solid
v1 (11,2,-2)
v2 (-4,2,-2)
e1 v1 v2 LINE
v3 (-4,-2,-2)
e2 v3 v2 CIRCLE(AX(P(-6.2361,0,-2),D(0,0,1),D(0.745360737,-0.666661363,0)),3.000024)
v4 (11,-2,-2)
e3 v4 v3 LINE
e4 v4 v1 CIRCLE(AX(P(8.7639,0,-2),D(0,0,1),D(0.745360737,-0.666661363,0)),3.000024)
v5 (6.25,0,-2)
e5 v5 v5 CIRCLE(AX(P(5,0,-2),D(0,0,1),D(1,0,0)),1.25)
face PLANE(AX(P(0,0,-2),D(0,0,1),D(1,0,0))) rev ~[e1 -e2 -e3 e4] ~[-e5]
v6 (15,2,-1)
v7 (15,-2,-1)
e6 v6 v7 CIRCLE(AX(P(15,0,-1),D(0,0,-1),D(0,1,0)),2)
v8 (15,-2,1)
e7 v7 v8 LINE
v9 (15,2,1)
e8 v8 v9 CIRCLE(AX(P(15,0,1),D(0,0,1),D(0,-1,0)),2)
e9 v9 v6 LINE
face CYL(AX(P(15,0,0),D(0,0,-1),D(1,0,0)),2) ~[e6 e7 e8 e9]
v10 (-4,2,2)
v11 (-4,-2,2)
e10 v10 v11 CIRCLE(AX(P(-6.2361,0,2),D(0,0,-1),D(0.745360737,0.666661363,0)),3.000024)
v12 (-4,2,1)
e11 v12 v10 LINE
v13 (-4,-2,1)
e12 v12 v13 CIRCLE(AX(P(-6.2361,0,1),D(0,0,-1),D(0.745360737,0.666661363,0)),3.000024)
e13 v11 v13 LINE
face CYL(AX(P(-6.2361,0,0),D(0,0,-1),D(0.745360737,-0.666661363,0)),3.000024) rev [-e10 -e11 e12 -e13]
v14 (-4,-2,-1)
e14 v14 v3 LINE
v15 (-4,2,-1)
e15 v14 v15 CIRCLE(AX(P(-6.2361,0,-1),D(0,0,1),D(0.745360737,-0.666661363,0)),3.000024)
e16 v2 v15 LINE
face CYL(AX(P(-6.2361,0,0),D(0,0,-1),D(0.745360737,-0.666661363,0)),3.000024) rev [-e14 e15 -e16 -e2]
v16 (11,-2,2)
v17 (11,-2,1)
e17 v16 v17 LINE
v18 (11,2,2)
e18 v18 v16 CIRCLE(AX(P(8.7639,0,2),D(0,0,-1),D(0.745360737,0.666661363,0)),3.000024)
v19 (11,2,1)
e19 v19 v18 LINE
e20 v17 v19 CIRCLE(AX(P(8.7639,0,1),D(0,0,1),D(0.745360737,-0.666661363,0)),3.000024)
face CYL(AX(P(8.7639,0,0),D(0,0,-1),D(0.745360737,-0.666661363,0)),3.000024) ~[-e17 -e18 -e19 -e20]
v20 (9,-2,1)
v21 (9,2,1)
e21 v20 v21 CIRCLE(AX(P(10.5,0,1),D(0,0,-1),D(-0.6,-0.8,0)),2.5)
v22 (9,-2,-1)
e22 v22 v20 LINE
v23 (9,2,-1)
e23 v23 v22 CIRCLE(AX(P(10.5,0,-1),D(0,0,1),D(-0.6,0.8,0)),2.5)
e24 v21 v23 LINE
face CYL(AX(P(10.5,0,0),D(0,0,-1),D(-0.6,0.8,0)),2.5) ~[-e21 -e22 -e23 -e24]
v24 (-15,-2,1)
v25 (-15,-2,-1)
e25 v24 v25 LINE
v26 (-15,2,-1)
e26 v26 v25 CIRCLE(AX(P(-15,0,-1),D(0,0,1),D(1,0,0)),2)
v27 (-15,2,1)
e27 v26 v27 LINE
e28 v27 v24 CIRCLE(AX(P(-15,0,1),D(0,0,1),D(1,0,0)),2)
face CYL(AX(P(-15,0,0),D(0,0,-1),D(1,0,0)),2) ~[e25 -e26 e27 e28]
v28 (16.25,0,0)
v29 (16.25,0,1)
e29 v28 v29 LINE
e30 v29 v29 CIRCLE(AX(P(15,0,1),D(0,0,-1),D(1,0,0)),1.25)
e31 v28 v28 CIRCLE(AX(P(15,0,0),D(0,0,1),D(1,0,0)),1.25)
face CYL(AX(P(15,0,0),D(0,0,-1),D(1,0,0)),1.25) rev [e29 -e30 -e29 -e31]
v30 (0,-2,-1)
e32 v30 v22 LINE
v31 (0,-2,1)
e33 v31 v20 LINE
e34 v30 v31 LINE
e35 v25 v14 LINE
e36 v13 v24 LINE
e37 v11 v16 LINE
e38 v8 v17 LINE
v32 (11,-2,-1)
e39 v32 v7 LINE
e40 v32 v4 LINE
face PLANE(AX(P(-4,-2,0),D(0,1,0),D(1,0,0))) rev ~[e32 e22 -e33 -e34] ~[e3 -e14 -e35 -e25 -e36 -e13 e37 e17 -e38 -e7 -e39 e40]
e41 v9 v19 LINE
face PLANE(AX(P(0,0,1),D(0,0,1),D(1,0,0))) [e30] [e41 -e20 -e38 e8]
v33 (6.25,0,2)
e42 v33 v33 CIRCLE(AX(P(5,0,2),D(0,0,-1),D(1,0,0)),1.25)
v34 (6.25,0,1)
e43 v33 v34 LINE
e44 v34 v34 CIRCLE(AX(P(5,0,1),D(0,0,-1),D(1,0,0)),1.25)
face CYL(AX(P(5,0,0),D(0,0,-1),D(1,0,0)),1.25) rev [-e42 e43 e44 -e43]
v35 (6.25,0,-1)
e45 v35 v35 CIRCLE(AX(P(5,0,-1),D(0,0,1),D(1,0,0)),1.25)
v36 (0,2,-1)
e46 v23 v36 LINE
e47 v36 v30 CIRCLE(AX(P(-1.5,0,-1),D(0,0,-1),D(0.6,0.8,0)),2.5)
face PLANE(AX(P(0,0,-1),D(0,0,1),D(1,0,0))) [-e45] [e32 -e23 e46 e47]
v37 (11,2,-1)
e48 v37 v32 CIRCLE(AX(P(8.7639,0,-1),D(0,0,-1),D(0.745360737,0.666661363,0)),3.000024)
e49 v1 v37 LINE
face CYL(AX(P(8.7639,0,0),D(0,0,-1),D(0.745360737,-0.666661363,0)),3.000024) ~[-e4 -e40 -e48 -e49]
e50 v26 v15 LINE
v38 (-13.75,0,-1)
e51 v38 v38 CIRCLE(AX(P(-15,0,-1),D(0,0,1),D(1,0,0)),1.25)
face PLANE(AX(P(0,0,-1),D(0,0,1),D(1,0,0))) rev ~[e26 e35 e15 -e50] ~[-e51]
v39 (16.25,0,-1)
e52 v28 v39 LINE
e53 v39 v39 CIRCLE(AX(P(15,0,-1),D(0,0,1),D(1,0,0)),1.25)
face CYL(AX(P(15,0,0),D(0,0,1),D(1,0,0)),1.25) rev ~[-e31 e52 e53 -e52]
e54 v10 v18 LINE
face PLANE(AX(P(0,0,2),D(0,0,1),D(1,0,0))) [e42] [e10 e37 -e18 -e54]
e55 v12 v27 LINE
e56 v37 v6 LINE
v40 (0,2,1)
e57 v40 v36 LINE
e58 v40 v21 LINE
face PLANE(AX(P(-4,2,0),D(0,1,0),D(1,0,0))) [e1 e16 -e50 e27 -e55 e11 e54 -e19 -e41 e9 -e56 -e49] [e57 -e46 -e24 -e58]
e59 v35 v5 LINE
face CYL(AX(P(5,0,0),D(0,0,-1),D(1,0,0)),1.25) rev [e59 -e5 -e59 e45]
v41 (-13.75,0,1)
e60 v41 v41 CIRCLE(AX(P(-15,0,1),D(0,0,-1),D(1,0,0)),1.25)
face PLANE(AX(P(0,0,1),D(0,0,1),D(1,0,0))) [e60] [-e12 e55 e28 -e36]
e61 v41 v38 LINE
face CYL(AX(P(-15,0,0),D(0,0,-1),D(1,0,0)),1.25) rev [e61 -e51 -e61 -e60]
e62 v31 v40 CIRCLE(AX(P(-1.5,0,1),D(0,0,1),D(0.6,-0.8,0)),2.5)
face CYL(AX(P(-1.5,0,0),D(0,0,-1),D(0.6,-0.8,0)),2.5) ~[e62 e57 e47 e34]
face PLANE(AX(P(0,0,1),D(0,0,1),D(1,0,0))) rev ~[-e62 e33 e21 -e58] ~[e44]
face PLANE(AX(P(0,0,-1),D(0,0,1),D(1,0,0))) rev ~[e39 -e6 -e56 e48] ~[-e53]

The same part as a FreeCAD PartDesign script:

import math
import FreeCAD as App
import Part
import Sketcher

doc = App.newDocument("Part")
body = doc.addObject("PartDesign::Body", "Body")
body.AllowCompound = True

# Sketch on XY plane
sketch1 = body.newObject("Sketcher::SketchObject", "Sketch")
sketch1.AttachmentSupport = (doc.getObject("XY_Plane"), [""])
sketch1.MapMode = "FlatFace"
sketch1.addGeometry([
    Part.ArcOfCircle(Part.Circle(App.Vector(-6.2, 0, 0), App.Vector(0, 0, 1), 3), math.radians(-42), math.radians(42)),  # 0
    Part.LineSegment(App.Vector(-4, 2, 0), App.Vector(-15, 2, 0)),  # 1
    Part.ArcOfCircle(Part.Circle(App.Vector(-15, 0, 0), App.Vector(0, 0, 1), 2), math.radians(90), math.radians(270)),  # 2
    Part.LineSegment(App.Vector(-15, -2, 0), App.Vector(-4, -2, 0)),  # 3
    Part.Circle(App.Vector(-15, 0, 0), App.Vector(0, 0, 1), 1.2),  # 4
    Part.LineSegment(App.Vector(11, -2, 0), App.Vector(15, -2, 0)),  # 5
    Part.ArcOfCircle(Part.Circle(App.Vector(15, 0, 0), App.Vector(0, 0, 1), 2), math.radians(-90), math.radians(90)),  # 6
    Part.LineSegment(App.Vector(15, 2, 0), App.Vector(11, 2, 0)),  # 7
    Part.ArcOfCircle(Part.Circle(App.Vector(8.8, 0, 0), App.Vector(0, 0, 1), 3), math.radians(-42), math.radians(42)),  # 8
    Part.Circle(App.Vector(15, 0, 0), App.Vector(0, 0, 1), 1.2),  # 9
], False)
sketch1.addConstraint([
    Sketcher.Constraint("Coincident", 0, 2, 1, 1),
    Sketcher.Constraint("Tangent", 1, 2, 2, 1),
    Sketcher.Constraint("Tangent", 2, 2, 3, 1),
    Sketcher.Constraint("Coincident", 3, 2, 0, 1),
    Sketcher.Constraint("Tangent", 5, 2, 6, 1),
    Sketcher.Constraint("Tangent", 6, 2, 7, 1),
    Sketcher.Constraint("Coincident", 7, 2, 8, 2),
    Sketcher.Constraint("Coincident", 8, 1, 5, 1),
    Sketcher.Constraint("Horizontal", 1),
    Sketcher.Constraint("Horizontal", 3),
    Sketcher.Constraint("Horizontal", 5),
    Sketcher.Constraint("Horizontal", 7),
    Sketcher.Constraint("Coincident", 4, 3, 2, 3),
    Sketcher.Constraint("Coincident", 9, 3, 6, 3),
    Sketcher.Constraint("Equal", 2, 6),
    Sketcher.Constraint("Equal", 0, 8),
    Sketcher.Constraint("Equal", 4, 9),
    Sketcher.Constraint("Symmetric", 2, 3, 6, 3, -1, 1),
    Sketcher.Constraint("Symmetric", 0, 2, 3, 2, -1),
    Sketcher.Constraint("PointOnObject", 8, 3, -1),
    Sketcher.Constraint("Radius", 0, 3.0),
    Sketcher.Constraint("Radius", 2, 2.0),
    Sketcher.Constraint("Diameter", 4, 2.5),
    Sketcher.Constraint("DistanceX", 1, 2, 1, 1, 11.0),
    Sketcher.Constraint("DistanceX", 5, 1, 5, 2, 4.0),
    Sketcher.Constraint("DistanceX", 2, 3, -1, 1, 15.0),
])
pad1 = body.newObject("PartDesign::Pad", "Pad")
pad1.Profile = sketch1
pad1.Length = 2
pad1.Midplane = True

# Sketch on XY plane
sketch2 = body.newObject("Sketcher::SketchObject", "Sketch001")
sketch2.AttachmentSupport = (doc.getObject("XY_Plane"), [""])
sketch2.MapMode = "FlatFace"
sketch2.addGeometry([
    Part.LineSegment(App.Vector(0, 2, 0), App.Vector(-4, 2, 0)),  # 0
    Part.ArcOfCircle(Part.Circle(App.Vector(-6.2, 0, 0), App.Vector(0, 0, 1), 3), math.radians(-42), math.radians(42)),  # 1
    Part.LineSegment(App.Vector(-4, -2, 0), App.Vector(0, -2, 0)),  # 2
    Part.ArcOfCircle(Part.Circle(App.Vector(-1.5, 0, 0), App.Vector(0, 0, 1), 2.5), math.radians(-53), math.radians(53)),  # 3
    Part.ArcOfCircle(Part.Circle(App.Vector(8.8, 0, 0), App.Vector(0, 0, 1), 3), math.radians(-42), math.radians(42)),  # 4
    Part.LineSegment(App.Vector(11, 2, 0), App.Vector(9, 2, 0)),  # 5
    Part.ArcOfCircle(Part.Circle(App.Vector(10.5, 0, 0), App.Vector(0, 0, 1), 2.5), math.radians(127), math.radians(233)),  # 6
    Part.LineSegment(App.Vector(9, -2, 0), App.Vector(11, -2, 0)),  # 7
], False)
sketch2.addConstraint([
    Sketcher.Constraint("Coincident", 0, 2, 1, 2),
    Sketcher.Constraint("Coincident", 1, 1, 2, 1),
    Sketcher.Constraint("Coincident", 2, 2, 3, 1),
    Sketcher.Constraint("Coincident", 3, 2, 0, 1),
    Sketcher.Constraint("Coincident", 4, 2, 5, 1),
    Sketcher.Constraint("Coincident", 5, 2, 6, 1),
    Sketcher.Constraint("Coincident", 6, 2, 7, 1),
    Sketcher.Constraint("Coincident", 7, 2, 4, 1),
    Sketcher.Constraint("Horizontal", 0),
    Sketcher.Constraint("Horizontal", 2),
    Sketcher.Constraint("Horizontal", 5),
    Sketcher.Constraint("Horizontal", 7),
    Sketcher.Constraint("Equal", 1, 4),
    Sketcher.Constraint("Equal", 3, 6),
    Sketcher.Constraint("Symmetric", 2, 2, 3, 2, -1, 1),
    Sketcher.Constraint("Symmetric", 5, 2, 6, 2, -1),
    Sketcher.Constraint("PointOnObject", 1, 3, -1),
    Sketcher.Constraint("PointOnObject", 3, 3, -1),
    Sketcher.Constraint("PointOnObject", 4, 3, -1),
    Sketcher.Constraint("Horizontal", 3, 2, 4, 2),
    Sketcher.Constraint("Radius", 1, 3.0),
    Sketcher.Constraint("Radius", 3, 2.5),
    Sketcher.Constraint("DistanceX", 0, 2, 0, 1, 4.0),
    Sketcher.Constraint("DistanceX", 5, 2, 5, 1, 2.0),
    Sketcher.Constraint("DistanceY", -1, 1, 0, 2, 2.0),
    Sketcher.Constraint("DistanceX", -1, 1, 4, 2, 11.0),
])
pad2 = body.newObject("PartDesign::Pad", "Pad001")
pad2.Profile = sketch2
pad2.Length = 4
pad2.Midplane = True

# Sketch on XY plane
sketch3 = body.newObject("Sketcher::SketchObject", "Sketch002")
sketch3.AttachmentSupport = (doc.getObject("XY_Plane"), [""])
sketch3.MapMode = "FlatFace"
sketch3.addGeometry([
    Part.ArcOfCircle(Part.Circle(App.Vector(-1.5, 0, 0), App.Vector(0, 0, 1), 2.5), math.radians(-53), math.radians(53)),  # 0
    Part.LineSegment(App.Vector(0, -2, 0), App.Vector(9, -2, 0)),  # 1
    Part.ArcOfCircle(Part.Circle(App.Vector(10.5, 0, 0), App.Vector(0, 0, 1), 2.5), math.radians(127), math.radians(233)),  # 2
    Part.LineSegment(App.Vector(9, 2, 0), App.Vector(0, 2, 0)),  # 3
    Part.Circle(App.Vector(5, 0, 0), App.Vector(0, 0, 1), 1.2),  # 4
], False)
sketch3.addConstraint([
    Sketcher.Constraint("Coincident", 0, 1, 1, 1),
    Sketcher.Constraint("Coincident", 1, 2, 2, 2),
    Sketcher.Constraint("Coincident", 2, 1, 3, 1),
    Sketcher.Constraint("Coincident", 3, 2, 0, 2),
    Sketcher.Constraint("Horizontal", 1),
    Sketcher.Constraint("Horizontal", 3),
    Sketcher.Constraint("Equal", 0, 2),
    Sketcher.Constraint("Symmetric", 0, 1, 3, 2, -1, 1),
    Sketcher.Constraint("PointOnObject", 0, 3, -1),
    Sketcher.Constraint("PointOnObject", 2, 3, -1),
    Sketcher.Constraint("PointOnObject", 4, 3, -1),
    Sketcher.Constraint("Diameter", 4, 2.5),
    Sketcher.Constraint("Radius", 0, 2.5),
    Sketcher.Constraint("DistanceX", -1, 1, 4, 3, 5.0),
    Sketcher.Constraint("DistanceY", 0, 1, -1, 1, 2.0),
    Sketcher.Constraint("DistanceX", 4, 3, 1, 2, 4.0),
])
pad3 = body.newObject("PartDesign::Pad", "Pad002")
pad3.Profile = sketch3
pad3.Length = 4
pad3.Midplane = True

# Sketch on XY plane
sketch4 = body.newObject("Sketcher::SketchObject", "Sketch003")
sketch4.AttachmentSupport = (doc.getObject("XY_Plane"), [""])
sketch4.MapMode = "FlatFace"
sketch4.addGeometry([
    Part.ArcOfCircle(Part.Circle(App.Vector(-1.5, 0, 0), App.Vector(0, 0, 1), 2.5), math.radians(-53), math.radians(53)),  # 0
    Part.LineSegment(App.Vector(0, -2, 0), App.Vector(9, -2, 0)),  # 1
    Part.ArcOfCircle(Part.Circle(App.Vector(10.5, 0, 0), App.Vector(0, 0, 1), 2.5), math.radians(127), math.radians(233)),  # 2
    Part.LineSegment(App.Vector(9, 2, 0), App.Vector(0, 2, 0)),  # 3
    Part.Circle(App.Vector(5, 0, 0), App.Vector(0, 0, 1), 1.2),  # 4
], False)
sketch4.addConstraint([
    Sketcher.Constraint("Coincident", 0, 1, 1, 1),
    Sketcher.Constraint("Coincident", 1, 2, 2, 2),
    Sketcher.Constraint("Coincident", 2, 1, 3, 1),
    Sketcher.Constraint("Coincident", 3, 2, 0, 2),
    Sketcher.Constraint("Horizontal", 1),
    Sketcher.Constraint("Horizontal", 3),
    Sketcher.Constraint("Equal", 0, 2),
    Sketcher.Constraint("Symmetric", 0, 1, 3, 2, -1, 1),
    Sketcher.Constraint("PointOnObject", 0, 3, -1),
    Sketcher.Constraint("PointOnObject", 2, 3, -1),
    Sketcher.Constraint("PointOnObject", 4, 3, -1),
    Sketcher.Constraint("Diameter", 4, 2.5),
    Sketcher.Constraint("Radius", 0, 2.5),
    Sketcher.Constraint("DistanceX", -1, 1, 4, 3, 5.0),
    Sketcher.Constraint("DistanceY", 0, 1, -1, 1, 2.0),
    Sketcher.Constraint("DistanceX", 4, 3, 1, 2, 4.0),
])
pocket1 = body.newObject("PartDesign::Pocket", "Pocket")
pocket1.Profile = sketch4
pocket1.Length = 2
pocket1.Midplane = True

doc.recompute()
